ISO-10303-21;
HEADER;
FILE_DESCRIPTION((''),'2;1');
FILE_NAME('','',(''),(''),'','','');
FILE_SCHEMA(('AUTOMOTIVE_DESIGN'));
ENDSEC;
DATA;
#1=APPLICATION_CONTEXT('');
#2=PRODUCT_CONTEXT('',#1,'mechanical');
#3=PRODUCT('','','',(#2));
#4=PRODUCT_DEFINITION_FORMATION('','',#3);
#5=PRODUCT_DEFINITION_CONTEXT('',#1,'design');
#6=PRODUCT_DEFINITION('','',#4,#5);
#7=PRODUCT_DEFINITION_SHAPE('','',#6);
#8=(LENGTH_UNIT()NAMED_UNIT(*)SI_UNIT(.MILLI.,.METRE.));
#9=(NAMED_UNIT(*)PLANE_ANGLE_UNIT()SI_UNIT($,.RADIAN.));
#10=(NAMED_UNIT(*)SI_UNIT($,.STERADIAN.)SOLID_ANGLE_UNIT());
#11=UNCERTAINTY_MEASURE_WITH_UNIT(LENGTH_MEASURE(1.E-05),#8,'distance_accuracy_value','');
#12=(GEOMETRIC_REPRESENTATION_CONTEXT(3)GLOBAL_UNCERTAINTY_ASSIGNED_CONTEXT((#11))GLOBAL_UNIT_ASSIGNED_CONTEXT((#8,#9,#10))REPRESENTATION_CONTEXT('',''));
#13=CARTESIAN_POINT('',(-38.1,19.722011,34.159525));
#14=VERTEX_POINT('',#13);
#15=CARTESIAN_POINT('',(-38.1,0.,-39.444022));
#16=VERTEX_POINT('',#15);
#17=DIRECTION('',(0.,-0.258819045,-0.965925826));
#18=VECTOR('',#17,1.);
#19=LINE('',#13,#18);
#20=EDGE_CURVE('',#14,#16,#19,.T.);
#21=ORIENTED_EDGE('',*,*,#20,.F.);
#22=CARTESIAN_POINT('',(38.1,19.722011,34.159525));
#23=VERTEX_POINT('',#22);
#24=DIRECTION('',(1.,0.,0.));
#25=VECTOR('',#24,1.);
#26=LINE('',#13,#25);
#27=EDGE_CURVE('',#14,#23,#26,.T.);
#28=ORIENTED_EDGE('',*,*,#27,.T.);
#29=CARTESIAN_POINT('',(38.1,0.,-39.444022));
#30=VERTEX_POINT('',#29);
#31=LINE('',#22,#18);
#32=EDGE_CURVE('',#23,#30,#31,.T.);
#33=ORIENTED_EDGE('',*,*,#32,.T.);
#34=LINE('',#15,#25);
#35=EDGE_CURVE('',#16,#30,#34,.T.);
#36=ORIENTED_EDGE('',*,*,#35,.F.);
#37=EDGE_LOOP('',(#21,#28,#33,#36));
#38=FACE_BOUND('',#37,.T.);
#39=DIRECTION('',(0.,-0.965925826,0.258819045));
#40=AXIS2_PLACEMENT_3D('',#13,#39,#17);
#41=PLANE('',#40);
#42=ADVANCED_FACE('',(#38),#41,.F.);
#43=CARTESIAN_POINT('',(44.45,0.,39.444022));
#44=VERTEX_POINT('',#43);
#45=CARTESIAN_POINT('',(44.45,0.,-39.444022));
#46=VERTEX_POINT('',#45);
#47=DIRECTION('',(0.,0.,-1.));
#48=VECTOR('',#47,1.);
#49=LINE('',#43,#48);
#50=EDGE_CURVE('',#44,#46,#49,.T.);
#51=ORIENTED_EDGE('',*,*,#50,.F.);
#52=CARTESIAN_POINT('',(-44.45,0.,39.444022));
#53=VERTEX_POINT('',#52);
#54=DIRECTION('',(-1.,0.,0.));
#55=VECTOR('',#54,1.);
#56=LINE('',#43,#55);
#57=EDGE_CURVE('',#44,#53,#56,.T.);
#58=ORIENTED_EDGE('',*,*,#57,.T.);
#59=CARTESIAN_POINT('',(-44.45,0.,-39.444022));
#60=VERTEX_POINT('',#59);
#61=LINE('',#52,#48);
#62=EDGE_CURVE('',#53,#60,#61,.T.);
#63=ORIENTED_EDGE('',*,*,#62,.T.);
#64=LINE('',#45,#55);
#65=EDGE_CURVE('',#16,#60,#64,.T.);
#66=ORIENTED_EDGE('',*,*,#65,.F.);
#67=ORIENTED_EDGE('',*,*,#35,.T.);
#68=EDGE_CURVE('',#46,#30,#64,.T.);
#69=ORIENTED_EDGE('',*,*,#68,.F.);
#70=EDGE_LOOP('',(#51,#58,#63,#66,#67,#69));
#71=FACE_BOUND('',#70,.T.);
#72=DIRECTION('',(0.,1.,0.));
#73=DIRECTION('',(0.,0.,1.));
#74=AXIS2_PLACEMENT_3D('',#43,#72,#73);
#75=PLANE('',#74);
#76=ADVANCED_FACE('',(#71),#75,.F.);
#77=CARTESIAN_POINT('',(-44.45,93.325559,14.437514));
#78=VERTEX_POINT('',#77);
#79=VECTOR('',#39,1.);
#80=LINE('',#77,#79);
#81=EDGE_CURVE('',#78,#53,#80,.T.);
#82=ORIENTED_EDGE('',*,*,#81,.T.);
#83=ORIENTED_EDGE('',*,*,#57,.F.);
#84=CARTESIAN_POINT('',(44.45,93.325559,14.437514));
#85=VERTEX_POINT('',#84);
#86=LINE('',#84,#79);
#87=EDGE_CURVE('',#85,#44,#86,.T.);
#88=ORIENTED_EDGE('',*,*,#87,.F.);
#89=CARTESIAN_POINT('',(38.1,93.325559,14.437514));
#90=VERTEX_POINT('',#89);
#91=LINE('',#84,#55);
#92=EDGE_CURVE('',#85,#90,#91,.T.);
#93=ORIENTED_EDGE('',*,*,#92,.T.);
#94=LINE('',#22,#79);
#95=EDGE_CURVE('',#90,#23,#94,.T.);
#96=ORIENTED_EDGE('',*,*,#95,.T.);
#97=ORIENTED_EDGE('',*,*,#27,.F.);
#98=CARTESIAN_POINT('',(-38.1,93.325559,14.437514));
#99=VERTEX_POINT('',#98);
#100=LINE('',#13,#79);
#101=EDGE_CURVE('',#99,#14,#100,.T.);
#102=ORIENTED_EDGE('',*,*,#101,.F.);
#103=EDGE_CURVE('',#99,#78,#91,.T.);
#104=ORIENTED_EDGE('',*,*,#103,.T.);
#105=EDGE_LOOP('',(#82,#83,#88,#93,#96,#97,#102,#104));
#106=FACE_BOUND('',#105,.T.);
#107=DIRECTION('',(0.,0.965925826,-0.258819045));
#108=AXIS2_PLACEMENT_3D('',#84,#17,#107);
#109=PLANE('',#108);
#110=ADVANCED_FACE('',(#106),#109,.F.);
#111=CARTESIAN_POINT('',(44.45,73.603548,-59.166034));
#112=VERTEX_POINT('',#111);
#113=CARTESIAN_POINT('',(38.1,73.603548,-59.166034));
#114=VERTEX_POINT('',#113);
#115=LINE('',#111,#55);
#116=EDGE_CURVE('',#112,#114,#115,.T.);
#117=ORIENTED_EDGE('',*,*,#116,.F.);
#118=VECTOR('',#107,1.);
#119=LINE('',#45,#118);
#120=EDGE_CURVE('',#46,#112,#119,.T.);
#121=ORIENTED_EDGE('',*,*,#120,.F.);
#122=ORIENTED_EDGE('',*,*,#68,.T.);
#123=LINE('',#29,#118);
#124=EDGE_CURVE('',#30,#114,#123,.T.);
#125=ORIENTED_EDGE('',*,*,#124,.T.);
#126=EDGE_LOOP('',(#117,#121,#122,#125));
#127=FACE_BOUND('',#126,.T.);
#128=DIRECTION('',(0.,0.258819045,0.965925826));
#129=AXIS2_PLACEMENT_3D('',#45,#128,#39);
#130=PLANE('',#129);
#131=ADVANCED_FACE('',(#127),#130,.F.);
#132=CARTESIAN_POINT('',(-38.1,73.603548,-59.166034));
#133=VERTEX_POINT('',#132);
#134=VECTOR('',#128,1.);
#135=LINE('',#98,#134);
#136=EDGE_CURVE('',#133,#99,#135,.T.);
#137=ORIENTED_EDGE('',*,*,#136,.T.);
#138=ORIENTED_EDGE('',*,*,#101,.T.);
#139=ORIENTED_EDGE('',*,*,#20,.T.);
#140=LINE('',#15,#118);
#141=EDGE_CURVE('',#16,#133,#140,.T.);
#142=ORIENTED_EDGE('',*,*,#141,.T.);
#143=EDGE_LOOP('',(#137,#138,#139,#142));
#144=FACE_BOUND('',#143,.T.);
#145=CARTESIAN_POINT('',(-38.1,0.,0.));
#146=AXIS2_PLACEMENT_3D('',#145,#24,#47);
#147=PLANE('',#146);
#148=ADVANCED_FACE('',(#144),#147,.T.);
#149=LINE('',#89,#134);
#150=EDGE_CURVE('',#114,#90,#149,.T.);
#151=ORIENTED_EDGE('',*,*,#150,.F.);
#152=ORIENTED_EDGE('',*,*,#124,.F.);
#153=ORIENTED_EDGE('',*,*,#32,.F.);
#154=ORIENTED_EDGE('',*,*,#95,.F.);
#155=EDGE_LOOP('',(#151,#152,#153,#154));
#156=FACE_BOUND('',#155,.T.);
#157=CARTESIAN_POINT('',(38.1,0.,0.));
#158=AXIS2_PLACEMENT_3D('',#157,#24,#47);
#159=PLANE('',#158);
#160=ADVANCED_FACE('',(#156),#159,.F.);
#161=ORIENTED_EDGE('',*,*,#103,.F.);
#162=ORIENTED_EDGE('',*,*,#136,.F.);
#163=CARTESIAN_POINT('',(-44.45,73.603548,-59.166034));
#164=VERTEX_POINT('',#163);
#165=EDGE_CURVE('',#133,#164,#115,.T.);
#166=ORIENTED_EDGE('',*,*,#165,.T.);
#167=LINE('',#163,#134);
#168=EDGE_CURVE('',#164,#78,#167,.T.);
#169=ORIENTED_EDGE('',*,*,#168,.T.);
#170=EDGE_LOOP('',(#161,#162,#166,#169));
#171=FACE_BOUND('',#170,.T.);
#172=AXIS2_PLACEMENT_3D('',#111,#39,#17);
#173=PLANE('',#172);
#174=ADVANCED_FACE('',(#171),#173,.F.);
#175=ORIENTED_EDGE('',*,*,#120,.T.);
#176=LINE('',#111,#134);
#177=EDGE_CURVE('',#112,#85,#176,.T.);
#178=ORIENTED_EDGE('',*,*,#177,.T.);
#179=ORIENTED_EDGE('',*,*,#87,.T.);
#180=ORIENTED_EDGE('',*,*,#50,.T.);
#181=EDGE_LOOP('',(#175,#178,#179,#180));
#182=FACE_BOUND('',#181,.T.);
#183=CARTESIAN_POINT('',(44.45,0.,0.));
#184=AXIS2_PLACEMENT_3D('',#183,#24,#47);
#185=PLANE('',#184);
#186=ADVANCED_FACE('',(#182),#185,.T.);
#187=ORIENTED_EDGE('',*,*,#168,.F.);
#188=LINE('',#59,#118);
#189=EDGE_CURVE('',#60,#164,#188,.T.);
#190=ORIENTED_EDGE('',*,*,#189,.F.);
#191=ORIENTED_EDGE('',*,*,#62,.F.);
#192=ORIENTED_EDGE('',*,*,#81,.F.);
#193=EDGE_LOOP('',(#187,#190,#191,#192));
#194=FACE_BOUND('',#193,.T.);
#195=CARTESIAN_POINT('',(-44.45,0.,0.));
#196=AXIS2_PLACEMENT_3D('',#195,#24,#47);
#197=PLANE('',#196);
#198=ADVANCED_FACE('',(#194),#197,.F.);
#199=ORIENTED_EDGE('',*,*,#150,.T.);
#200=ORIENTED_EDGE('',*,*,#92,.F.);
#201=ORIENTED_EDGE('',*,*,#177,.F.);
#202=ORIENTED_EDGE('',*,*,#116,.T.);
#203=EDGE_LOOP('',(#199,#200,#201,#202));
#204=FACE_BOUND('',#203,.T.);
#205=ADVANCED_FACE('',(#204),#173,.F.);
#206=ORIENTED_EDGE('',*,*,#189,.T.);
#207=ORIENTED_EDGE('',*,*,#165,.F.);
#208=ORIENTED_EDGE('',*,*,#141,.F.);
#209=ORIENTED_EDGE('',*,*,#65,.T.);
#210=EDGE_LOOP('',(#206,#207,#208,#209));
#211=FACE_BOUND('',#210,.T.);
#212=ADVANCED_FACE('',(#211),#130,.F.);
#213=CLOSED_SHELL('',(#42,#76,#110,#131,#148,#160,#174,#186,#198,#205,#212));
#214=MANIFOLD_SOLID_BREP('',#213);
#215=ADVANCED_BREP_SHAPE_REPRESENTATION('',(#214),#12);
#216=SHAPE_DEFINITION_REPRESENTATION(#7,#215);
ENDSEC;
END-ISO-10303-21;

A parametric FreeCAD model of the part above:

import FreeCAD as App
import Part
import Sketcher
from FreeCAD import Vector
Q = App.Units.Quantity


def add_polygon(sketch, points):
    """Adds a closed chain of lines whose ends are joined by coincident constraints."""
    first, n = sketch.GeometryCount, len(points)
    for a, b in zip(points, points[1:] + points[:1]):
        sketch.addGeometry(Part.LineSegment(App.Vector(*a, 0), App.Vector(*b, 0)), False)
    for i in range(n):
        sketch.addConstraint(Sketcher.Constraint("Coincident", first + i, 2, first + (i + 1) % n, 1))

doc = App.newDocument("Part")
body = doc.addObject("PartDesign::Body", "Body")

sketch1 = doc.addObject("Sketcher::SketchObject", "Sketch")
body.addObject(sketch1)
sketch1.AttachmentSupport = (doc.YZ_Plane, [""])
sketch1.MapMode = "FlatFace"
add_polygon(sketch1, [(0, 39.444022), (0, -39.444022), (73.603548, -59.166034), (93.325559, 14.437514)])
sketch1.addConstraint(Sketcher.Constraint("Vertical", 0))
sketch1.addConstraint(Sketcher.Constraint("Symmetric", 0, 2, 3, 2, -1, 1))
sketch1.addConstraint(Sketcher.Constraint("Perpendicular", 1, 2))
sketch1.addConstraint(Sketcher.Constraint("Perpendicular", 2, 3))
sketch1.addConstraint(Sketcher.Constraint("Equal", 1, 2))
sketch1.addConstraint(Sketcher.Constraint("Distance", 1, Q("3 in")))
sketch1.addConstraint(Sketcher.Constraint("Angle", 1, Q("-15 deg")))
pad1 = doc.addObject("PartDesign::Pad", "Pad")
body.addObject(pad1)
pad1.Profile = sketch1
pad1.Length = Q("3.5 in")
pad1.Midplane = True

sketch2 = doc.addObject("Sketcher::SketchObject", "Sketch001")
body.addObject(sketch2)
sketch2.AttachmentSupport = (doc.YZ_Plane, [""])
sketch2.MapMode = "FlatFace"
add_polygon(sketch2, [(93.325559, 14.437514), (19.722011, 34.159525), (0, -39.444022), (73.603548, -59.166034)])
sketch2.addConstraint(Sketcher.Constraint("PointOnObject", 1, 2, -2))
sketch2.addConstraint(Sketcher.Constraint("Perpendicular", 0, 1))
sketch2.addConstraint(Sketcher.Constraint("Perpendicular", 1, 2))
sketch2.addConstraint(Sketcher.Constraint("Perpendicular", 2, 3))
sketch2.addConstraint(Sketcher.Constraint("Equal", 0, 1))
sketch2.addConstraint(Sketcher.Constraint("Distance", 0, Q("3 in")))
sketch2.addConstraint(Sketcher.Constraint("Angle", 0, Q("165 deg")))
sketch2.addConstraint(Sketcher.Constraint("DistanceY", -1, 1, 0, 2, Q("34.159525 mm")))
pocket1 = doc.addObject("PartDesign::Pocket", "Pocket")
body.addObject(pocket1)
pocket1.Profile = sketch2
pocket1.Length = Q("3 in")
pocket1.Midplane = True

doc.recompute()
